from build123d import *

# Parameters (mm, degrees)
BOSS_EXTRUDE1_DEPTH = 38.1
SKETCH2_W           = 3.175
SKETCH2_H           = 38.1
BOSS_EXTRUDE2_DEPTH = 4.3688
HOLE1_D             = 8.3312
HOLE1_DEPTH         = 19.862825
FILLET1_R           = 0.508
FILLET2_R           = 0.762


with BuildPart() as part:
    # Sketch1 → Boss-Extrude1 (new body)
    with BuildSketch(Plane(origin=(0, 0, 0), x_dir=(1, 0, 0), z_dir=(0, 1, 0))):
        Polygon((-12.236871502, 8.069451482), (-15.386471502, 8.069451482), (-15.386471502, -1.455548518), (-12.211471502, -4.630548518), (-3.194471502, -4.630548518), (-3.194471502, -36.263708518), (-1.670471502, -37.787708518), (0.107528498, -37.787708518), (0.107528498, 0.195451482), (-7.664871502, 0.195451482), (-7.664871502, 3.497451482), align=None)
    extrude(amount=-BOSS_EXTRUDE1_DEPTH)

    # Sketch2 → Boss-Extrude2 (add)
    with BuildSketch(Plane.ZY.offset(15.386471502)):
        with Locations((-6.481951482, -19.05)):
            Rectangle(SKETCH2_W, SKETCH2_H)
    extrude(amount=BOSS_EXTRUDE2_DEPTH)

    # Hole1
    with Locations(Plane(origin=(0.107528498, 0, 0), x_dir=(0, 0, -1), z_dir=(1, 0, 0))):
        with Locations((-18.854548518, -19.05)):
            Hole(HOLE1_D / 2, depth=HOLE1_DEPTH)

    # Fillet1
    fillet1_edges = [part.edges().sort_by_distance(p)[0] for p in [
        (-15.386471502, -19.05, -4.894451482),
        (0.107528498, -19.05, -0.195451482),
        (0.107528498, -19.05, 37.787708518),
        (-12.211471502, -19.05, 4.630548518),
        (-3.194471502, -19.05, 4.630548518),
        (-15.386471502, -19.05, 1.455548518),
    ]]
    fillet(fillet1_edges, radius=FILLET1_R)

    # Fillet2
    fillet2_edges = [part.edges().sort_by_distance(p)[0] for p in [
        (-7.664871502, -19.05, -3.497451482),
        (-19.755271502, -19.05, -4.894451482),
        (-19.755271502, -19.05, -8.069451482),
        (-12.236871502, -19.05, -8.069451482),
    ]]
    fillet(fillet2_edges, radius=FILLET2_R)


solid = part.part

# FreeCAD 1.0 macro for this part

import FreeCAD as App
import Part
import Sketcher
from FreeCAD import Vector
Q = App.Units.Quantity


def edges_at(feature, points):
    """Names of the edges that pass closest to the given points."""
    edges = feature.Shape.Edges
    near = lambda p: min(range(len(edges)), key=lambda i: edges[i].distToShape(Part.Vertex(*p))[0])
    return sorted({f"Edge{near(p) + 1}" for p in points})


def add_polygon(sketch, points):
    """Adds a closed chain of lines whose ends are joined by coincident constraints."""
    first, n = sketch.GeometryCount, len(points)
    for a, b in zip(points, points[1:] + points[:1]):
        sketch.addGeometry(Part.LineSegment(App.Vector(*a, 0), App.Vector(*b, 0)), False)
    for i in range(n):
        sketch.addConstraint(Sketcher.Constraint("Coincident", first + i, 2, first + (i + 1) % n, 1))

doc = App.newDocument("Part")
params = doc.addObject("Spreadsheet::Sheet", "Params")
for row, (alias, value) in enumerate([
    ("sketch1_width", "0.07 in"),
    ("sketch1_height", "0.13 in"),
    ("sketch1_width2", "0.124 in"),
    ("sketch1_width3", "0.355 in"),
    ("sketch1_width4", "0.306 in"),
    ("pad1_length", "1.5 in"),
    ("sketch2_width", "1.5 in"),
    ("sketch2_height", "0.125 in"),
    ("pad2_length", "0.172 in"),
    ("sketch3_diameter", "0.328 in"),
    ("hole_diameter", "0.328 in"),
    ("hole_depth", "19.862825 mm"),
    ("fillet_radius", "0.02 in"),
    ("fillet2_radius", "0.03 in"),
], start=1):
    params.set(f"A{row}", alias)
    params.set(f"B{row}", "=" + value)
    params.setAlias(f"B{row}", alias)

body = doc.addObject("PartDesign::Body", "Body")

# Sketch on XZ plane
sketch1 = body.newObject("Sketcher::SketchObject", "Sketch")
sketch1.AttachmentSupport = (doc.getObject("XZ_Plane"), [""])
sketch1.MapMode = "FlatFace"
add_polygon(sketch1, [(-12.2, -8.1), (-15.4, -8.1), (-15.4, 1.5), (-12.2, 4.6), (-3.2, 4.6), (-3.2, 36.3), (-1.7, 37.8), (0.1, 37.8), (0.1, -0.2), (-7.7, -0.2), (-7.7, -3.5)])  # lines 0-10
sketch1.addConstraint([
    Sketcher.Constraint("Horizontal", 0),
    Sketcher.Constraint("Vertical", 1),
    Sketcher.Constraint("Horizontal", 3),
    Sketcher.Constraint("Vertical", 4),
    Sketcher.Constraint("Horizontal", 6),
    Sketcher.Constraint("Vertical", 7),
    Sketcher.Constraint("Horizontal", 8),
    Sketcher.Constraint("Vertical", 9),
    Sketcher.Constraint("Parallel", 2, 5),
    Sketcher.Constraint("Parallel", 5, 10),
    Sketcher.Constraint("Angle", 2, Q("45 deg")),
    Sketcher.Constraint("DistanceX", 6, 1, 6, 2, Q("0.07 in")),
    Sketcher.Constraint("DistanceY", 9, 2, 9, 1, Q("0.13 in")),
    Sketcher.Constraint("DistanceY", 0, 2, 2, 2, Q("0.5 in")),
    Sketcher.Constraint("DistanceX", 0, 2, 0, 1, Q("0.124 in")),
    Sketcher.Constraint("DistanceX", 3, 1, 3, 2, Q("0.355 in")),
    Sketcher.Constraint("DistanceX", 8, 2, 8, 1, Q("0.306 in")),
    Sketcher.Constraint("DistanceY", 1, 1, 1, 2, Q("0.375 in")),
    Sketcher.Constraint("DistanceX", 4, 2, 5, 2, Q("0.06 in")),
    Sketcher.Constraint("DistanceY", 4, 1, 4, 2, Q("1.2454 in")),
    Sketcher.Constraint("DistanceX", 0, 2, -1, 1, Q("15.386472 mm")),
    Sketcher.Constraint("DistanceY", 0, 2, -1, 1, Q("8.069451 mm")),
])
sketch1.setExpression("Constraints[22]", "Params.sketch1_width")
sketch1.setExpression("Constraints[23]", "Params.sketch1_height")
sketch1.setExpression("Constraints[25]", "Params.sketch1_width2")
sketch1.setExpression("Constraints[26]", "Params.sketch1_width3")
sketch1.setExpression("Constraints[27]", "Params.sketch1_width4")
pad1 = body.newObject("PartDesign::Pad", "Pad")
pad1.Profile = sketch1
pad1.setExpression("Length", "Params.pad1_length")

# Sketch on YZ plane
sketch2 = body.newObject("Sketcher::SketchObject", "Sketch001")
sketch2.AttachmentSupport = (doc.getObject("YZ_Plane"), [""])
sketch2.MapMode = "FlatFace"
sketch2.AttachmentOffset = App.Placement(Vector(0, 0, -15.386472), App.Rotation())
add_polygon(sketch2, [(0, -8.1), (-38.1, -8.1), (-38.1, -4.9), (0, -4.9)])  # lines 0-3
sketch2.addConstraint([
    Sketcher.Constraint("Horizontal", 0),
    Sketcher.Constraint("Vertical", 1),
    Sketcher.Constraint("Horizontal", 2),
    Sketcher.Constraint("Vertical", 3),
    Sketcher.Constraint("PointOnObject", 2, 2, -2),
    Sketcher.Constraint("DistanceX", 0, 2, 0, 1, Q("1.5 in")),
    Sketcher.Constraint("DistanceY", 1, 1, 1, 2, Q("0.125 in")),
    Sketcher.Constraint("DistanceY", 0, 2, -1, 1, Q("8.069451 mm")),
])
sketch2.setExpression("Constraints[9]", "Params.sketch2_width")
sketch2.setExpression("Constraints[10]", "Params.sketch2_height")
pad2 = body.newObject("PartDesign::Pad", "Pad001")
pad2.Profile = sketch2
pad2.setExpression("Length", "Params.pad2_length")
pad2.Reversed = True

# Sketch on YZ plane
sketch3 = body.newObject("Sketcher::SketchObject", "Sketch002")
sketch3.AttachmentSupport = (doc.getObject("YZ_Plane"), [""])
sketch3.MapMode = "FlatFace"
sketch3.AttachmentOffset = App.Placement(Vector(0, 0, 0.107528), App.Rotation())
sketch3.addGeometry(Part.Circle(Vector(-19.1, 18.9, 0), Vector(0, 0, 1), 4.2), False)
sketch3.addConstraint([
    Sketcher.Constraint("Diameter", 0, Q("0.328 in")),
    Sketcher.Constraint("DistanceX", 0, 3, -1, 1, Q("0.75 in")),
    Sketcher.Constraint("DistanceY", -1, 1, 0, 3, Q("18.854549 mm")),
])
sketch3.setExpression("Constraints[0]", "Params.sketch3_diameter")
doc.recompute()
hole = body.newObject("PartDesign::Hole", "Hole")
hole.Profile = sketch3
hole.ThreadType = "None"
hole.setExpression("Diameter", "Params.hole_diameter")
hole.DepthType = "Dimension"
hole.setExpression("Depth", "Params.hole_depth")
hole.DrillPoint = "Flat"
doc.recompute()

fillet = body.newObject("PartDesign::Fillet", "Fillet")
fillet.Base = (hole, edges_at(hole, [
    (-15.386, -19.05, -4.894),
    (0.108, -19.05, -0.195),
    (0.108, -19.05, 37.788),
    (-12.211, -19.05, 4.631),
    (-3.194, -19.05, 4.631),
    (-15.386, -19.05, 1.456),
]))
fillet.setExpression("Radius", "Params.fillet_radius")
doc.recompute()

fillet2 = body.newObject("PartDesign::Fillet", "Fillet001")
fillet2.Base = (fillet, edges_at(fillet, [
    (-7.665, -19.05, -3.497),
    (-19.755, -19.05, -4.894),
    (-19.755, -19.05, -8.069),
    (-12.237, -19.05, -8.069),
]))
fillet2.setExpression("Radius", "Params.fillet2_radius")

doc.recompute()
